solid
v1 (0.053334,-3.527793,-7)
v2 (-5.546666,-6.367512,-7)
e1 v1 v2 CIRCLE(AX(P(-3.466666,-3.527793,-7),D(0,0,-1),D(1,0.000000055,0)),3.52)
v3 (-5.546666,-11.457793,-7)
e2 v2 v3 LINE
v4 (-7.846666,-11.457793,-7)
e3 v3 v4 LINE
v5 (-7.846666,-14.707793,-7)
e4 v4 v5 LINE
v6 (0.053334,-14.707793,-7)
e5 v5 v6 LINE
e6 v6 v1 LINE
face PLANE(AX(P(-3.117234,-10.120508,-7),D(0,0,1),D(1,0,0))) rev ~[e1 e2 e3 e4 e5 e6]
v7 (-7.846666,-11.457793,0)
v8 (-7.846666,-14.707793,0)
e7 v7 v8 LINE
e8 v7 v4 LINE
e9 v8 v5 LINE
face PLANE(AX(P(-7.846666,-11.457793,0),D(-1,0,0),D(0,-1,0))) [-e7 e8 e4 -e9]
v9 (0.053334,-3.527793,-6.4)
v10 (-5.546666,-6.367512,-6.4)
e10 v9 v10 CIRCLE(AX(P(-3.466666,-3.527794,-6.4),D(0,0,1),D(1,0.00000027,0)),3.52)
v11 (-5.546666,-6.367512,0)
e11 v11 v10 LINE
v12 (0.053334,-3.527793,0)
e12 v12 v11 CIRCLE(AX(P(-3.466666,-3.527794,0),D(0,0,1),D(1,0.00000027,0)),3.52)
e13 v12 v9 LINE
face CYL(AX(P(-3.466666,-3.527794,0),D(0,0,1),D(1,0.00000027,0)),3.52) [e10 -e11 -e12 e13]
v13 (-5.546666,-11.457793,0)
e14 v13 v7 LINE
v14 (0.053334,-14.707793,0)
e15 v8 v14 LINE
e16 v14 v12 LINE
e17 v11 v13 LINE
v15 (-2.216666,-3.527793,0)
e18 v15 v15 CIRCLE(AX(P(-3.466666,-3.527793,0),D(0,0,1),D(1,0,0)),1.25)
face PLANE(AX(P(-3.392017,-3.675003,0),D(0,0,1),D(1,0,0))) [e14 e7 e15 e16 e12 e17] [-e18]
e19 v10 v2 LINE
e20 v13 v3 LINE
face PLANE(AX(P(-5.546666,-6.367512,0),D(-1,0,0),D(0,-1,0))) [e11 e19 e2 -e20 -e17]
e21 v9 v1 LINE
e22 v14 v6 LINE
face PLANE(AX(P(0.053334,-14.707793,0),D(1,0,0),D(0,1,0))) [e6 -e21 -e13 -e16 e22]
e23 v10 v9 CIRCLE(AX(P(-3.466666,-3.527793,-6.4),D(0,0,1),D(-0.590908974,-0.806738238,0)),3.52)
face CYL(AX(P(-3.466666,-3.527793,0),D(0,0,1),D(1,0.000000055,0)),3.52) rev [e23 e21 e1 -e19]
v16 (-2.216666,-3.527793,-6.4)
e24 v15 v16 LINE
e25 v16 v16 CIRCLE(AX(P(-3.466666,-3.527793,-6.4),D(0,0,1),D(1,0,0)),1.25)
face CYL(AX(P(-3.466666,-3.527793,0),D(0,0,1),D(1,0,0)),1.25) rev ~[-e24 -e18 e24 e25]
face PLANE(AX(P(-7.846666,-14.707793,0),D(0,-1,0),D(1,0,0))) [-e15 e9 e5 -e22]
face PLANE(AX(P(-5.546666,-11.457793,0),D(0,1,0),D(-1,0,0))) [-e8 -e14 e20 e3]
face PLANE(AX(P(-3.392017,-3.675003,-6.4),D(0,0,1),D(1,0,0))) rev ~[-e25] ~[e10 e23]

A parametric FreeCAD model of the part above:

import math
import FreeCAD as App
import Part
import Sketcher

doc = App.newDocument("Part")
params = doc.addObject("Spreadsheet::Sheet", "Params")
for row, (alias, value) in enumerate([
    ("sketch1_radius", "3.52 mm"),
    ("sketch1_width", "2.3 mm"),
    ("sketch1_width2", "7.9 mm"),
    ("sketch1_height", "11.18 mm"),
    ("sketch1_height2", "3.25 mm"),
    ("pad1_length", "7 mm"),
    ("sketch2_diameter", "2.5 mm"),
    ("sketch2_radius", "3.52 mm"),
    ("pad2_length", "6.4 mm"),
], start=1):
    params.set(f"A{row}", alias)
    params.set(f"B{row}", "=" + value)
    params.setAlias(f"B{row}", alias)

body = doc.addObject("PartDesign::Body", "Body")

sketch1 = body.newObject("Sketcher::SketchObject", "Sketch")
sketch1.AttachmentSupport = (doc.getObject("XY_Plane"), [""])
sketch1.MapMode = "FlatFace"
sketch1.addGeometry(Part.LineSegment(App.Vector(0.053334, -14.707793, 0), App.Vector(0.053334, -3.527793, 0)), False)
sketch1.addGeometry(Part.ArcOfCircle(Part.Circle(App.Vector(-3.466666, -3.527793, 0), App.Vector(0, 0, 1), 3.52), math.radians(-126.221538), math.radians(0.000003)), False)
sketch1.addGeometry(Part.LineSegment(App.Vector(-5.546666, -6.367512, 0), App.Vector(-5.546666, -11.457793, 0)), False)
sketch1.addGeometry(Part.LineSegment(App.Vector(-5.546666, -11.457793, 0), App.Vector(-7.846666, -11.457793, 0)), False)
sketch1.addGeometry(Part.LineSegment(App.Vector(-7.846666, -11.457793, 0), App.Vector(-7.846666, -14.707793, 0)), False)
sketch1.addGeometry(Part.LineSegment(App.Vector(-7.846666, -14.707793, 0), App.Vector(0.053334, -14.707793, 0)), False)
sketch1.addConstraint(Sketcher.Constraint("Tangent", 0, 2, 1, 2))
sketch1.addConstraint(Sketcher.Constraint("Coincident", 1, 1, 2, 1))
sketch1.addConstraint(Sketcher.Constraint("Coincident", 2, 2, 3, 1))
sketch1.addConstraint(Sketcher.Constraint("Coincident", 3, 2, 4, 1))
sketch1.addConstraint(Sketcher.Constraint("Coincident", 4, 2, 5, 1))
sketch1.addConstraint(Sketcher.Constraint("Coincident", 5, 2, 0, 1))
sketch1.addConstraint(Sketcher.Constraint("Vertical", 0))
sketch1.addConstraint(Sketcher.Constraint("Vertical", 2))
sketch1.addConstraint(Sketcher.Constraint("Horizontal", 3))
sketch1.addConstraint(Sketcher.Constraint("Vertical", 4))
sketch1.addConstraint(Sketcher.Constraint("Horizontal", 5))
sketch1.addConstraint(Sketcher.Constraint("Radius", 1, 3.52))
sketch1.addConstraint(Sketcher.Constraint("DistanceX", 3, 2, 3, 1, 2.3))
sketch1.addConstraint(Sketcher.Constraint("DistanceX", 5, 1, 5, 2, 7.9))
sketch1.addConstraint(Sketcher.Constraint("DistanceY", 0, 1, 0, 2, 11.18))
sketch1.addConstraint(Sketcher.Constraint("DistanceY", 4, 2, 4, 1, 3.25))
sketch1.addConstraint(Sketcher.Constraint("DistanceY", 1, 1, -1, 1, 6.367512))
sketch1.addConstraint(Sketcher.Constraint("DistanceX", 1, 3, -1, 1, 3.466666))
sketch1.setExpression("Constraints[11]", "Params.sketch1_radius")
sketch1.setExpression("Constraints[12]", "Params.sketch1_width")
sketch1.setExpression("Constraints[13]", "Params.sketch1_width2")
sketch1.setExpression("Constraints[14]", "Params.sketch1_height")
sketch1.setExpression("Constraints[15]", "Params.sketch1_height2")
pad1 = body.newObject("PartDesign::Pad", "Pad")
pad1.Profile = sketch1
pad1.setExpression("Length", "Params.pad1_length")
pad1.Reversed = True

sketch2 = body.newObject("Sketcher::SketchObject", "Sketch001")
sketch2.AttachmentSupport = (doc.getObject("XY_Plane"), [""])
sketch2.MapMode = "FlatFace"
sketch2.addGeometry(Part.ArcOfCircle(Part.Circle(App.Vector(-3.466666, -3.527793, 0), App.Vector(0, 0, 1), 3.52), math.radians(-126.221538), math.radians(0.000003)), False)
sketch2.addGeometry(Part.ArcOfCircle(Part.Circle(App.Vector(-3.466666, -3.527794, 0), App.Vector(0, 0, 1), 3.52), math.radians(0.000015), math.radians(233.778449)), False)
sketch2.addGeometry(Part.Circle(App.Vector(-3.466666, -3.527793, 0), App.Vector(0, 0, 1), 1.25), False)
sketch2.addConstraint(Sketcher.Constraint("Tangent", 0, 1, 1, 2))
sketch2.addConstraint(Sketcher.Constraint("Coincident", 1, 1, 0, 2))
sketch2.addConstraint(Sketcher.Constraint("Coincident", 2, 3, 0, 3))
sketch2.addConstraint(Sketcher.Constraint("Horizontal", 2, 3, 1, 1))
sketch2.addConstraint(Sketcher.Constraint("Diameter", 2, 2.5))
sketch2.addConstraint(Sketcher.Constraint("Radius", 0, 3.52))
sketch2.addConstraint(Sketcher.Constraint("DistanceX", 0, 1, 1, 1, 5.6))
sketch2.addConstraint(Sketcher.Constraint("DistanceY", 0, 1, -1, 1, 6.367512))
sketch2.addConstraint(Sketcher.Constraint("DistanceX", 0, 3, -1, 1, 3.466666))
sketch2.setExpression("Constraints[4]", "Params.sketch2_diameter")
sketch2.setExpression("Constraints[5]", "Params.sketch2_radius")
pad2 = body.newObject("PartDesign::Pad", "Pad001")
pad2.Profile = sketch2
pad2.setExpression("Length", "Params.pad2_length")
pad2.Reversed = True

doc.recompute()
